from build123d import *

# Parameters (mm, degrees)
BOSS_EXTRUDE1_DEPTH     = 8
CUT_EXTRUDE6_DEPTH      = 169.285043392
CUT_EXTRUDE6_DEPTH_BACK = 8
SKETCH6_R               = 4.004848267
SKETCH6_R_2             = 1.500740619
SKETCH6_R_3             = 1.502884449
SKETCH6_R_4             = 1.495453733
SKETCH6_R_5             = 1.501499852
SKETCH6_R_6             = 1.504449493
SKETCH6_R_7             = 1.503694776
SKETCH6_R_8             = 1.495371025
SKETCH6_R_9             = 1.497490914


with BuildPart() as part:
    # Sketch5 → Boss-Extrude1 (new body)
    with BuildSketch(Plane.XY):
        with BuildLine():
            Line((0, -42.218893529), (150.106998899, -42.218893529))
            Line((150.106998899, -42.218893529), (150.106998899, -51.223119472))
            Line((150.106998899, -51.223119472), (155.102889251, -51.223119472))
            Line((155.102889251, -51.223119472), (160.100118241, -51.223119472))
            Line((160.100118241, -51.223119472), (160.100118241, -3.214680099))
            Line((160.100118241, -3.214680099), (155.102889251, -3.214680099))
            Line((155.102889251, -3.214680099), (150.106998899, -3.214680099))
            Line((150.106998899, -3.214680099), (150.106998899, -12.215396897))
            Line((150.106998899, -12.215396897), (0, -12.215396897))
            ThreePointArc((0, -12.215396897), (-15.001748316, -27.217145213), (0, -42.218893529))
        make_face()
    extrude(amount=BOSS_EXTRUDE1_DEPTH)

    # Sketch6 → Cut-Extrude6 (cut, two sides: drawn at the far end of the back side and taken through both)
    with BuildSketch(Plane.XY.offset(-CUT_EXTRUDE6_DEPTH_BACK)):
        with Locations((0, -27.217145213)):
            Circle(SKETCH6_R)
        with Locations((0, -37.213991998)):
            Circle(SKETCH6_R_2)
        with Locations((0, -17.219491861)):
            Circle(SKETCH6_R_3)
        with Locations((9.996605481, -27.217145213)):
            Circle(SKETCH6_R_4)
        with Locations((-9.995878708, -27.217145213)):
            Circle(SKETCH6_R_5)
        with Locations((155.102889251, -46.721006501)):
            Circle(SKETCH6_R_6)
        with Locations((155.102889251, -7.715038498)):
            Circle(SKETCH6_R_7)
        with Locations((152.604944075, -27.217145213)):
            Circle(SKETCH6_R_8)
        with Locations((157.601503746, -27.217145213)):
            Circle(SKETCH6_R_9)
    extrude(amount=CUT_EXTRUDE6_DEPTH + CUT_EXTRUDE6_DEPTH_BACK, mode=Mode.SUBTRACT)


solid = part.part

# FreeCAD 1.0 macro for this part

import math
import FreeCAD as App
import Part
import Sketcher

doc = App.newDocument("Part")
body = doc.addObject("PartDesign::Body", "Body")

# Sketch on XY plane
sketch1 = doc.addObject("Sketcher::SketchObject", "Sketch")
body.addObject(sketch1)
sketch1.AttachmentSupport = (doc.XY_Plane, [""])
sketch1.MapMode = "FlatFace"
sketch1.addGeometry([
    Part.LineSegment(App.Vector(0, -42.218894, 0), App.Vector(150.106999, -42.218894, 0)),  # 0
    Part.LineSegment(App.Vector(150.106999, -42.218894, 0), App.Vector(150.106999, -51.223119, 0)),  # 1
    Part.LineSegment(App.Vector(150.106999, -51.223119, 0), App.Vector(160.100118, -51.223119, 0)),  # 2
    Part.LineSegment(App.Vector(160.100118, -51.223119, 0), App.Vector(160.100118, -3.21468, 0)),  # 3
    Part.LineSegment(App.Vector(160.100118, -3.21468, 0), App.Vector(150.106999, -3.21468, 0)),  # 4
    Part.LineSegment(App.Vector(150.106999, -3.21468, 0), App.Vector(150.106999, -12.215397, 0)),  # 5
    Part.LineSegment(App.Vector(150.106999, -12.215397, 0), App.Vector(0, -12.215397, 0)),  # 6
    Part.ArcOfCircle(Part.Circle(App.Vector(0, -27.217145, 0), App.Vector(0, 0, 1), 15.001748), math.radians(90), math.radians(270)),  # 7
], False)
sketch1.addConstraint([
    Sketcher.Constraint("Coincident", 0, 2, 1, 1),
    Sketcher.Constraint("Coincident", 1, 2, 2, 1),
    Sketcher.Constraint("Coincident", 2, 2, 3, 1),
    Sketcher.Constraint("Coincident", 3, 2, 4, 1),
    Sketcher.Constraint("Coincident", 4, 2, 5, 1),
    Sketcher.Constraint("Coincident", 5, 2, 6, 1),
    Sketcher.Constraint("Tangent", 6, 2, 7, 1),
    Sketcher.Constraint("Tangent", 7, 2, 0, 1),
    Sketcher.Constraint("Horizontal", 0),
    Sketcher.Constraint("Vertical", 1),
    Sketcher.Constraint("Horizontal", 2),
    Sketcher.Constraint("Vertical", 3),
    Sketcher.Constraint("Horizontal", 4),
    Sketcher.Constraint("Vertical", 5),
    Sketcher.Constraint("Horizontal", 6),
    Sketcher.Constraint("PointOnObject", 7, 3, -2),
    Sketcher.Constraint("Vertical", 1, 2, 4, 2),
    Sketcher.Constraint("DistanceX", 0, 1, 0, 2, 150.106999),
    Sketcher.Constraint("Radius", 7, 15.001748),
    Sketcher.Constraint("DistanceX", 2, 1, 2, 2, 9.993119),
    Sketcher.Constraint("DistanceY", 3, 1, 3, 2, 48.008439),
    Sketcher.Constraint("DistanceY", 1, 2, 1, 1, 9.004226),
    Sketcher.Constraint("DistanceY", 1, 2, -1, 1, 51.223119),
])
pad1 = doc.addObject("PartDesign::Pad", "Pad")
body.addObject(pad1)
pad1.Profile = sketch1
pad1.Length = 8

# Sketch on XY plane
sketch2 = doc.addObject("Sketcher::SketchObject", "Sketch001")
body.addObject(sketch2)
sketch2.AttachmentSupport = (doc.XY_Plane, [""])
sketch2.MapMode = "FlatFace"
sketch2.addGeometry([
    Part.Circle(App.Vector(0, -27.217145, 0), App.Vector(0, 0, 1), 4.004848),  # 0
    Part.Circle(App.Vector(0, -37.213992, 0), App.Vector(0, 0, 1), 1.500741),  # 1
    Part.Circle(App.Vector(0, -17.219492, 0), App.Vector(0, 0, 1), 1.502884),  # 2
    Part.Circle(App.Vector(9.996605, -27.217145, 0), App.Vector(0, 0, 1), 1.495454),  # 3
    Part.Circle(App.Vector(-9.995879, -27.217145, 0), App.Vector(0, 0, 1), 1.5015),  # 4
    Part.Circle(App.Vector(155.102889, -46.721007, 0), App.Vector(0, 0, 1), 1.504449),  # 5
    Part.Circle(App.Vector(155.102889, -7.715038, 0), App.Vector(0, 0, 1), 1.503695),  # 6
    Part.Circle(App.Vector(152.604944, -27.217145, 0), App.Vector(0, 0, 1), 1.495371),  # 7
    Part.Circle(App.Vector(157.601504, -27.217145, 0), App.Vector(0, 0, 1), 1.497491),  # 8
], False)
sketch2.addConstraint([
    Sketcher.Constraint("PointOnObject", 0, 3, -2),
    Sketcher.Constraint("PointOnObject", 1, 3, -2),
    Sketcher.Constraint("PointOnObject", 2, 3, -2),
    Sketcher.Constraint("Horizontal", 0, 3, 3, 3),
    Sketcher.Constraint("Horizontal", 3, 3, 4, 3),
    Sketcher.Constraint("Horizontal", 4, 3, 7, 3),
    Sketcher.Constraint("Horizontal", 7, 3, 8, 3),
    Sketcher.Constraint("Vertical", 5, 3, 6, 3),
    Sketcher.Constraint("Diameter", 4, 3.003),
    Sketcher.Constraint("Diameter", 5, 3.008899),
    Sketcher.Constraint("Diameter", 1, 3.001481),
    Sketcher.Constraint("Diameter", 2, 3.005769),
    Sketcher.Constraint("Diameter", 6, 3.00739),
    Sketcher.Constraint("Diameter", 8, 2.994982),
    Sketcher.Constraint("Diameter", 0, 8.009697),
    Sketcher.Constraint("Diameter", 3, 2.990907),
    Sketcher.Constraint("Diameter", 7, 2.990742),
    Sketcher.Constraint("DistanceY", 1, 3, 2, 3, 19.9945),
    Sketcher.Constraint("DistanceX", 3, 3, 8, 3, 147.604898),
    Sketcher.Constraint("DistanceY", 1, 3, -1, 1, 37.213992),
    Sketcher.Constraint("DistanceX", 4, 3, -1, 1, 9.995879),
    Sketcher.Constraint("DistanceX", -1, 1, 5, 3, 155.102889),
    Sketcher.Constraint("DistanceY", 6, 3, -1, 1, 7.715038),
    Sketcher.Constraint("DistanceY", 5, 3, 3, 3, 19.503861),
    Sketcher.Constraint("DistanceY", 5, 3, 6, 3, 39.005968),
    Sketcher.Constraint("DistanceX", 3, 3, 7, 3, 142.608339),
    Sketcher.Constraint("DistanceX", -1, 1, 3, 3, 9.996605),
])
pocket1 = doc.addObject("PartDesign::Pocket", "Pocket")
body.addObject(pocket1)
pocket1.Profile = sketch2
pocket1.Type = "ThroughAll"
pocket1.Midplane = True

doc.recompute()
